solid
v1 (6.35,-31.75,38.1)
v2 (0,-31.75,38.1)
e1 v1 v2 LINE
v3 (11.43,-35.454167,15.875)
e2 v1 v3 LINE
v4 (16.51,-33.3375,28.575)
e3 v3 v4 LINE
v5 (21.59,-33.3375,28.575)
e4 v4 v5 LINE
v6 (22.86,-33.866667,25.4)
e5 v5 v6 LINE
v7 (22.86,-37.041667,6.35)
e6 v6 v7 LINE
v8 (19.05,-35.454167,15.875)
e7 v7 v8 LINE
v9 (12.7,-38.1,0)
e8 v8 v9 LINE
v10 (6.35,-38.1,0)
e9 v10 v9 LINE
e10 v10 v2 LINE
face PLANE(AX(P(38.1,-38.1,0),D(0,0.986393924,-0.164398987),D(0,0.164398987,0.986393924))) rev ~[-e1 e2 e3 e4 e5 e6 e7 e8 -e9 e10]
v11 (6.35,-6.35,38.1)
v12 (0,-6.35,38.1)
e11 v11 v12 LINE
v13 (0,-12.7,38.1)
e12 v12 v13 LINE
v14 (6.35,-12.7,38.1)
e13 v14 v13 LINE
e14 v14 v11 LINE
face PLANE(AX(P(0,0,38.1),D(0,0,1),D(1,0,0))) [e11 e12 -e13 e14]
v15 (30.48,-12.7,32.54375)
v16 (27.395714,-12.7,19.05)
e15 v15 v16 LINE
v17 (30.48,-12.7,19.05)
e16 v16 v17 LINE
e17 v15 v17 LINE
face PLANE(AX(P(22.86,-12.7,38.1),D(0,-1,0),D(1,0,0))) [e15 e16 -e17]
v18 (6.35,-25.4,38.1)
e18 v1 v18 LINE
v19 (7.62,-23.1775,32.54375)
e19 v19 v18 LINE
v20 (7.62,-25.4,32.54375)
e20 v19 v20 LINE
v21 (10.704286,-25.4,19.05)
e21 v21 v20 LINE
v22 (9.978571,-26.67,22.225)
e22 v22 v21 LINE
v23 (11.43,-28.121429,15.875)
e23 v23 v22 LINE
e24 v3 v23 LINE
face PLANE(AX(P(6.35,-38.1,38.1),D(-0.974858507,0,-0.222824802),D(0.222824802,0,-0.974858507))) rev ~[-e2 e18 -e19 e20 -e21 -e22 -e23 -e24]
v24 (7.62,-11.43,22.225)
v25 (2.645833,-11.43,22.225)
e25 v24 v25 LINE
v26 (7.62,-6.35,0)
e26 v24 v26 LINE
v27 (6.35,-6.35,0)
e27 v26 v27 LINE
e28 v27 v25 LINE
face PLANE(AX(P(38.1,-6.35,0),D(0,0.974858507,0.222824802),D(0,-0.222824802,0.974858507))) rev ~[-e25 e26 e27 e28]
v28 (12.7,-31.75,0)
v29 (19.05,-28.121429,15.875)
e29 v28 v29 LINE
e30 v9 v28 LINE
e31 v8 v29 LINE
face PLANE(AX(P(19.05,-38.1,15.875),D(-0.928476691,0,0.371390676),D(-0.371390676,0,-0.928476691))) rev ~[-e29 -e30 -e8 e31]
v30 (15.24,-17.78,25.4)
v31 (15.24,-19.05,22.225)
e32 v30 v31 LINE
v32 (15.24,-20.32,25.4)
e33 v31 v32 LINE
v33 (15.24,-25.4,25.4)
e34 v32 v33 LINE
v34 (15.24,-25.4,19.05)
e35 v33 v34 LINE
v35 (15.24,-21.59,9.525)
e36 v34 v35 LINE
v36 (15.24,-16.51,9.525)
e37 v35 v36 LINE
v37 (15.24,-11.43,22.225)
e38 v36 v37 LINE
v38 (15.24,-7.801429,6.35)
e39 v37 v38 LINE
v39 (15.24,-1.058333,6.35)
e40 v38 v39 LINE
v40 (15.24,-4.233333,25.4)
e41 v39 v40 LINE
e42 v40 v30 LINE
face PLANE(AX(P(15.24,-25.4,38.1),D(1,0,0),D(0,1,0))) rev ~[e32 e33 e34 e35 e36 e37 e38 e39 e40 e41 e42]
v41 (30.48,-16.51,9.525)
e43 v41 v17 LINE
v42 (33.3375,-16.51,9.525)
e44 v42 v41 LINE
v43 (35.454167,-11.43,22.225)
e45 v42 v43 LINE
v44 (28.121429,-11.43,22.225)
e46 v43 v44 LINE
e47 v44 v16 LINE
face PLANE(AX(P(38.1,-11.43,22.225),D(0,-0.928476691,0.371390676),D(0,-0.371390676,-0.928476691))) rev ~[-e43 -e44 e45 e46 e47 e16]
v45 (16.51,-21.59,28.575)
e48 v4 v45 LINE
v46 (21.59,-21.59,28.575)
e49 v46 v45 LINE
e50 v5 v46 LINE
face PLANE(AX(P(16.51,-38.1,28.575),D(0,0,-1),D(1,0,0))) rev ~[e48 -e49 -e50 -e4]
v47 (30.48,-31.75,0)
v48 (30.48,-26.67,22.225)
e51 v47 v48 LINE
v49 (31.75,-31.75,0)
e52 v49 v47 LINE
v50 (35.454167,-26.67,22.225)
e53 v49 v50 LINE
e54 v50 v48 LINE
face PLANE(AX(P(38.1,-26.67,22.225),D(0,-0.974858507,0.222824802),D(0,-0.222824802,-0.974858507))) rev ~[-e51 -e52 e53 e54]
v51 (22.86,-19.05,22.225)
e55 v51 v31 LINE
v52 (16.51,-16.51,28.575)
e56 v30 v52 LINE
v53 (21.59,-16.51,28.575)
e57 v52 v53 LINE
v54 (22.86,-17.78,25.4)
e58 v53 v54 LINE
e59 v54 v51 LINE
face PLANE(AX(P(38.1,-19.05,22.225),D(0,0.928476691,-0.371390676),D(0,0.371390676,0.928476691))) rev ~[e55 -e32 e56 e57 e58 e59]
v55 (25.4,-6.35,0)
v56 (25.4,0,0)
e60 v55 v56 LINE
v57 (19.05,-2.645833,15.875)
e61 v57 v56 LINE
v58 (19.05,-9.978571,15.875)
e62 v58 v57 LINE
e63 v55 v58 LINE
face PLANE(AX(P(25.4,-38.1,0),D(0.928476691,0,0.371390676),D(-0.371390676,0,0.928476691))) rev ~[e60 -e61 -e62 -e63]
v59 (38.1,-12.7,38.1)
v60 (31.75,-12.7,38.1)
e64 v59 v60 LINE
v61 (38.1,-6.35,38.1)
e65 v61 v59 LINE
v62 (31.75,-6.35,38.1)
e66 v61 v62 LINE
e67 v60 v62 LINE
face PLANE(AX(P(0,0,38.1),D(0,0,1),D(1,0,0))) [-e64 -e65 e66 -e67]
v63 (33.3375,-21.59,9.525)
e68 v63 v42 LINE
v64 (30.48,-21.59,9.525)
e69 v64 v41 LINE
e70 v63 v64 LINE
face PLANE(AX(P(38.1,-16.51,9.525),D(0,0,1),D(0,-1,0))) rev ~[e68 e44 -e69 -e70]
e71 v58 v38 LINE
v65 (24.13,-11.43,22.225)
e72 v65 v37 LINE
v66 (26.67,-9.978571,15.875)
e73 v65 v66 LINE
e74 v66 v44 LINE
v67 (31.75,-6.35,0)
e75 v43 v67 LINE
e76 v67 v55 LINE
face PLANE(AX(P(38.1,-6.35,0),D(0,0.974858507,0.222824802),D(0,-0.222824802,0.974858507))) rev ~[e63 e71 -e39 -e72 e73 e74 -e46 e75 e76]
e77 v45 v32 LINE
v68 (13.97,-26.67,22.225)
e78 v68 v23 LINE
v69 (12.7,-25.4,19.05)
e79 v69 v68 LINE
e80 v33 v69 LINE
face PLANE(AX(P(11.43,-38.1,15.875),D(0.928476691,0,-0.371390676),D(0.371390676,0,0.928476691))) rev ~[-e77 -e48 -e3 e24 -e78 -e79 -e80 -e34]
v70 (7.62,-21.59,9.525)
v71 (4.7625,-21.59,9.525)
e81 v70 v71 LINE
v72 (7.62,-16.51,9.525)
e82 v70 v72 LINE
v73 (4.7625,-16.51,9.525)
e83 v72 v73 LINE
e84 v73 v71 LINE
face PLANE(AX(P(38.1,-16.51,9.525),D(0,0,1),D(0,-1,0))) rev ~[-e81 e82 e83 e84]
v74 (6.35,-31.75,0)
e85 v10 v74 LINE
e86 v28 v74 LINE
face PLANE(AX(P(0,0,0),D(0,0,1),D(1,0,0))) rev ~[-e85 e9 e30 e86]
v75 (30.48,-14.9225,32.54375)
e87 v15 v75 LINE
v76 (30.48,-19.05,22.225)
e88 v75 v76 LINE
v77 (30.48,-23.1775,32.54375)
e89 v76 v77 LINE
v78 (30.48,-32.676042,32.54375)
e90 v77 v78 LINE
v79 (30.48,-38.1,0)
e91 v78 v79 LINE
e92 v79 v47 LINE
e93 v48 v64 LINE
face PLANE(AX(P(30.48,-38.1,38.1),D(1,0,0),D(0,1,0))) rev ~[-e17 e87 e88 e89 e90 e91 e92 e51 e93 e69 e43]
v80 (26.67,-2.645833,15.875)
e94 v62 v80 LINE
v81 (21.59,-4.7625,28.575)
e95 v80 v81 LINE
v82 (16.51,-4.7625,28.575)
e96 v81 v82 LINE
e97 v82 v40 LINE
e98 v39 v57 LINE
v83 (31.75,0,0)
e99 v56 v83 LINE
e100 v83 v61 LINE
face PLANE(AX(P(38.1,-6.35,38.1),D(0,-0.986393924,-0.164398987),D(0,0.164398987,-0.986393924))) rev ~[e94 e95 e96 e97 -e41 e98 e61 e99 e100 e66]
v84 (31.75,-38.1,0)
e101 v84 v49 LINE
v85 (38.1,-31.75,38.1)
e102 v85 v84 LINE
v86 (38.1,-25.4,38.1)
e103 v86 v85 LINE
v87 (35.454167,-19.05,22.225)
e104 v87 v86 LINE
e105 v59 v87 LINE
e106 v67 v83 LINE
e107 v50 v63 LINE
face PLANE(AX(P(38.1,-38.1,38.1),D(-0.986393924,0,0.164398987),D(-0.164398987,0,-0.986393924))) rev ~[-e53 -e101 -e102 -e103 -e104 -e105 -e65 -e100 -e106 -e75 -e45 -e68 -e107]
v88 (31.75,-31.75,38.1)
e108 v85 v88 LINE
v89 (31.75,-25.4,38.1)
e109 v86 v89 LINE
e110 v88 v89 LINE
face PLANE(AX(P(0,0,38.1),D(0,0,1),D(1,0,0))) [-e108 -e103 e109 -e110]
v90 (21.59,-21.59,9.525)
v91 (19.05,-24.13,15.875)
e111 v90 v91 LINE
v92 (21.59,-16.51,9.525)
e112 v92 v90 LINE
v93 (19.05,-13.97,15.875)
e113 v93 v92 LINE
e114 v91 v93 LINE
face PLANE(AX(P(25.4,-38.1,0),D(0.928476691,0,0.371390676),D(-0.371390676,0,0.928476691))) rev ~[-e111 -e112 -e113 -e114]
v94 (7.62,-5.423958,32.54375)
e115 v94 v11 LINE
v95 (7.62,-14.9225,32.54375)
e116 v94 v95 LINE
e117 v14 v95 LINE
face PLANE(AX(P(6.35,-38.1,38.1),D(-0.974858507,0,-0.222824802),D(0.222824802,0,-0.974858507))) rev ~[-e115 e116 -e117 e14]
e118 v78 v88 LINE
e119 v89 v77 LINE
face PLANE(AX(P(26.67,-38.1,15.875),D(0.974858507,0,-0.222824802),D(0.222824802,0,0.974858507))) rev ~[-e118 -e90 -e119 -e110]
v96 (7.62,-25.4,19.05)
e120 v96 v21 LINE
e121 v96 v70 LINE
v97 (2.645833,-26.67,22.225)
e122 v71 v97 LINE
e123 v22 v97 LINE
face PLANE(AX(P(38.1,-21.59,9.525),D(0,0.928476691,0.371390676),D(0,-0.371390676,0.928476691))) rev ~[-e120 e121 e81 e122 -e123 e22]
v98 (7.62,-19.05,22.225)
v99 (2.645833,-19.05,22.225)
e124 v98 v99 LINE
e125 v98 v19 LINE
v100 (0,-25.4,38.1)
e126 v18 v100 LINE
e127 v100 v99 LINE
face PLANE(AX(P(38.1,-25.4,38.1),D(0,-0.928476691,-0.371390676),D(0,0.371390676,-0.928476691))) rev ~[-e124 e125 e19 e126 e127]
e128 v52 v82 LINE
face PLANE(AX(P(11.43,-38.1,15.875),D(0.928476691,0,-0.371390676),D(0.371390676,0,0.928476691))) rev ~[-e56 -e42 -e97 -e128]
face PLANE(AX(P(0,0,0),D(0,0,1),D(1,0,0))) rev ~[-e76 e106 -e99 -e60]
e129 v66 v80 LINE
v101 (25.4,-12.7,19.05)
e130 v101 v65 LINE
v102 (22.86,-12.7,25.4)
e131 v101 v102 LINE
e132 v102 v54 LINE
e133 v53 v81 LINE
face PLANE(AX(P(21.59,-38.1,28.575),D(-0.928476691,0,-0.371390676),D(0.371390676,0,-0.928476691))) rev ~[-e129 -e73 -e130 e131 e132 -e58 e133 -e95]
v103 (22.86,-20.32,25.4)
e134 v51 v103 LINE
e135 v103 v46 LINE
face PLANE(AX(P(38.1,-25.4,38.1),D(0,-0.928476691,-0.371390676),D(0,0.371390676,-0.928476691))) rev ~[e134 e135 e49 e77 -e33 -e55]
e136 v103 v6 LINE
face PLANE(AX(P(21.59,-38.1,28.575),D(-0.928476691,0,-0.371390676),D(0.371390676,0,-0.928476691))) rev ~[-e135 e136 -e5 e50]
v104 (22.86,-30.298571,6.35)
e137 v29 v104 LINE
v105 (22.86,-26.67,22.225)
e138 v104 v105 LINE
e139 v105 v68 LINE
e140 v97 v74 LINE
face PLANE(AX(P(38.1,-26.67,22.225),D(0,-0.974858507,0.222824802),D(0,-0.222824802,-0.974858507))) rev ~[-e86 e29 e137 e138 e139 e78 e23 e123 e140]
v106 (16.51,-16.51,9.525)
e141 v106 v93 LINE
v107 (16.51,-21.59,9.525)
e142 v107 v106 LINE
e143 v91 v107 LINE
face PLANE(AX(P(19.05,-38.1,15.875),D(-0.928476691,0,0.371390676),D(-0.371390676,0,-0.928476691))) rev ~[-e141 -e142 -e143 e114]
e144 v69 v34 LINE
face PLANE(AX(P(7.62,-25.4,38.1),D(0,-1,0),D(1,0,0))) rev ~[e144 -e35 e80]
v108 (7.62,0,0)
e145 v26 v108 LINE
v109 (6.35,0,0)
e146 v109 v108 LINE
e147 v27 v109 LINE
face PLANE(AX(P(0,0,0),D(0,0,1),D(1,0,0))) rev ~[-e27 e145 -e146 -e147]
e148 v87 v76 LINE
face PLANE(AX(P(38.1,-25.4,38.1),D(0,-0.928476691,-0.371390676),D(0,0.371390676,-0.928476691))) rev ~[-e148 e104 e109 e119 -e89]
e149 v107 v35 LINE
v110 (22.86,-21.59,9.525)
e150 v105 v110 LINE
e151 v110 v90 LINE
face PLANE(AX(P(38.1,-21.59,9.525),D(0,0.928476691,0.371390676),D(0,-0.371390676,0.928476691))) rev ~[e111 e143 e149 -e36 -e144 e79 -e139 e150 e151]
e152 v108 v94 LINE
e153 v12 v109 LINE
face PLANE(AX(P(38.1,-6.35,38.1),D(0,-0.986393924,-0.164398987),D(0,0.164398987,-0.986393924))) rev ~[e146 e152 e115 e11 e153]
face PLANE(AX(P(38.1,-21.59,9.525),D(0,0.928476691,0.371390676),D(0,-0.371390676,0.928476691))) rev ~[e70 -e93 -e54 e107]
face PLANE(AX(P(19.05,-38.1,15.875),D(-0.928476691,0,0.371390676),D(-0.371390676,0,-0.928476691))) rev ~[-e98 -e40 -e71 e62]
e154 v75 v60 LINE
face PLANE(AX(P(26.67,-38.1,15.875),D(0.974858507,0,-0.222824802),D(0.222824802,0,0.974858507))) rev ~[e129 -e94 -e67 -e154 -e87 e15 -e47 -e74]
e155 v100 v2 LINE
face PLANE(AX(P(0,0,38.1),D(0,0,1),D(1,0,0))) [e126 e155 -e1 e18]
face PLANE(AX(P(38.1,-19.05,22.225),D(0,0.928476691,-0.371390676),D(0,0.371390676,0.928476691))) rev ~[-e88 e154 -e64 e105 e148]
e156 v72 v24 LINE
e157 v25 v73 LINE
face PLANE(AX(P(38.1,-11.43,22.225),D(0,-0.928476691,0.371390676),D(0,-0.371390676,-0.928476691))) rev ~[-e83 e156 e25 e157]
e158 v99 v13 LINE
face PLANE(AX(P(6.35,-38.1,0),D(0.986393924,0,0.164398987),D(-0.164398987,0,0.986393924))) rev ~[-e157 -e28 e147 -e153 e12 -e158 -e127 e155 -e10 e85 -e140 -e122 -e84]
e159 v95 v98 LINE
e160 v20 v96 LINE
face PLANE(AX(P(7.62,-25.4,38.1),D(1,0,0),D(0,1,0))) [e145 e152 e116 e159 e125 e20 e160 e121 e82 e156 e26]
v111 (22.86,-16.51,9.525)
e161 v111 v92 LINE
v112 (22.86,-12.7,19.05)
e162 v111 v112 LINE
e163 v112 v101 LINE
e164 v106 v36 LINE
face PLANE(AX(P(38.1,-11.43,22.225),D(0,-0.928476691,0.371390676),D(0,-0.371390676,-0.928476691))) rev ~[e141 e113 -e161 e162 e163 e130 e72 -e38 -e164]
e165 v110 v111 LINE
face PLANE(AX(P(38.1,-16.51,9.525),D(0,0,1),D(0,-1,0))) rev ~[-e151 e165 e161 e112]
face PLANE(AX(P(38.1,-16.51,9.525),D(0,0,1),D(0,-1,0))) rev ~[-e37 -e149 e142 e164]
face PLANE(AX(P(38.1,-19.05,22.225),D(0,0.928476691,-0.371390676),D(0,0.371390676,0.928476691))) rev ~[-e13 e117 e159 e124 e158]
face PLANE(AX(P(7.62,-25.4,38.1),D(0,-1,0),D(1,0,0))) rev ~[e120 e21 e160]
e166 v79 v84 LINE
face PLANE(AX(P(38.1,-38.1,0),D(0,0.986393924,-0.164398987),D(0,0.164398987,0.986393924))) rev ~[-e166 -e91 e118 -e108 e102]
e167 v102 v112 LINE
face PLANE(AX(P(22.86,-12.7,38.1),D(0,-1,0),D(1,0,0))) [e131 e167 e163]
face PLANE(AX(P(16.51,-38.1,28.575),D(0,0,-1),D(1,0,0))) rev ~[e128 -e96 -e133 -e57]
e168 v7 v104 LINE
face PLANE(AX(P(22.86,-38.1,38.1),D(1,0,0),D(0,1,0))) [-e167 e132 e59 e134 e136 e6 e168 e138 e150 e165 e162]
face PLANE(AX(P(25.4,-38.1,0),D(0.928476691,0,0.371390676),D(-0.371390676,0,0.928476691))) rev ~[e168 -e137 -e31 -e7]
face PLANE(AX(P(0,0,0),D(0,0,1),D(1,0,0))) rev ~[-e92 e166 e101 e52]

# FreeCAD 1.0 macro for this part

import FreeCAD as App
import Part
import Sketcher
from FreeCAD import Vector
Q = App.Units.Quantity


def add_polygon(sketch, points):
    """Adds a closed chain of lines whose ends are joined by coincident constraints."""
    first, n = sketch.GeometryCount, len(points)
    for a, b in zip(points, points[1:] + points[:1]):
        sketch.addGeometry(Part.LineSegment(App.Vector(*a, 0), App.Vector(*b, 0)), False)
    for i in range(n):
        sketch.addConstraint(Sketcher.Constraint("Coincident", first + i, 2, first + (i + 1) % n, 1))

doc = App.newDocument("Part")
params = doc.addObject("Spreadsheet::Sheet", "Params")
for row, (alias, value) in enumerate([
    ("sketch1_width", "1.5 in"),
    ("pad1_length", "1.5 in"),
    ("sketch2_width", "1 in"),
    ("sketch2_width2", "0.5 in"),
    ("sketch2_width3", "0.2 in"),
    ("sketch2_height", "1.5 in"),
    ("pocket1_length", "1.5 in"),
    ("sketch3_width", "1 in"),
    ("sketch3_width2", "0.5 in"),
    ("sketch3_width3", "0.2 in"),
    ("sketch3_height", "1.5 in"),
    ("pocket2_length", "1.5 in"),
    ("sketch4_height", "1 in"),
    ("sketch4_width", "0.3 in"),
    ("pocket3_length", "1.5 in"),
], start=1):
    params.set(f"A{row}", alias)
    params.set(f"B{row}", "=" + value)
    params.setAlias(f"B{row}", alias)

body = doc.addObject("PartDesign::Body", "Body")

# Sketch on XZ plane
sketch1 = doc.addObject("Sketcher::SketchObject", "Sketch")
body.addObject(sketch1)
sketch1.AttachmentSupport = (doc.XZ_Plane, [""])
sketch1.MapMode = "FlatFace"
add_polygon(sketch1, [(0, 38), (0, 0), (38, 0), (38, 38)])  # lines 0-3
sketch1.addConstraint(Sketcher.Constraint("Vertical", 0))
sketch1.addConstraint(Sketcher.Constraint("Horizontal", 1))
sketch1.addConstraint(Sketcher.Constraint("Vertical", 2))
sketch1.addConstraint(Sketcher.Constraint("Horizontal", 3))
sketch1.addConstraint(Sketcher.Constraint("Coincident", 0, 2, -1, 1))
sketch1.addConstraint(Sketcher.Constraint("Equal", 3, 0))
sketch1.addConstraint(Sketcher.Constraint("DistanceX", 1, 1, 1, 2, Q("1.5 in")))
sketch1.setExpression("Constraints[10]", "Params.sketch1_width")
pad1 = doc.addObject("PartDesign::Pad", "Pad")
body.addObject(pad1)
pad1.Profile = sketch1
pad1.setExpression("Length", "Params.pad1_length")

# Sketch on XZ plane
sketch2 = doc.addObject("Sketcher::SketchObject", "Sketch001")
body.addObject(sketch2)
sketch2.AttachmentSupport = (doc.XZ_Plane, [""])
sketch2.MapMode = "FlatFace"
sketch2.AttachmentOffset = App.Placement(Vector(0, 0, 1.5 * 25.4), App.Rotation())
add_polygon(sketch2, [(19, 16), (13, 0), (25, 0)])  # lines 0-2
add_polygon(sketch2, [(0, 38), (0, 0), (6, 0)])  # lines 3-5
add_polygon(sketch2, [(38, 38), (32, 0), (38, 0)])  # lines 6-8
add_polygon(sketch2, [(32, 38), (6, 38), (11, 16), (17, 29), (22, 29), (27, 16)])  # lines 9-14
sketch2.addConstraint(Sketcher.Constraint("Horizontal", 1))
sketch2.addConstraint(Sketcher.Constraint("Vertical", 3))
sketch2.addConstraint(Sketcher.Constraint("Horizontal", 4))
sketch2.addConstraint(Sketcher.Constraint("Horizontal", 7))
sketch2.addConstraint(Sketcher.Constraint("Vertical", 8))
sketch2.addConstraint(Sketcher.Constraint("Horizontal", 9))
sketch2.addConstraint(Sketcher.Constraint("Horizontal", 12))
sketch2.addConstraint(Sketcher.Constraint("Coincident", 3, 2, -1, 1))
sketch2.addConstraint(Sketcher.Constraint("PointOnObject", 0, 2, -1))
sketch2.addConstraint(Sketcher.Constraint("PointOnObject", 6, 2, -1))
sketch2.addConstraint(Sketcher.Constraint("Parallel", 0, 11))
sketch2.addConstraint(Sketcher.Constraint("Parallel", 2, 13))
sketch2.addConstraint(Sketcher.Constraint("Horizontal", 5, 2, 8, 2))
sketch2.addConstraint(Sketcher.Constraint("Horizontal", 8, 2, 9, 2))
sketch2.addConstraint(Sketcher.Constraint("Horizontal", 2, 2, 10, 2))
sketch2.addConstraint(Sketcher.Constraint("Horizontal", 10, 2, 13, 2))
sketch2.addConstraint(Sketcher.Constraint("Vertical", 4, 2, 9, 2))
sketch2.addConstraint(Sketcher.Constraint("Vertical", 6, 2, 14, 2))
sketch2.addConstraint(Sketcher.Constraint("Equal", 4, 7))
sketch2.addConstraint(Sketcher.Constraint("Equal", 0, 2))
sketch2.addConstraint(Sketcher.Constraint("Equal", 10, 14))
sketch2.addConstraint(Sketcher.Constraint("DistanceX", 9, 2, 9, 1, Q("1 in")))
sketch2.addConstraint(Sketcher.Constraint("DistanceX", 1, 1, 1, 2, Q("0.5 in")))
sketch2.addConstraint(Sketcher.Constraint("DistanceX", 12, 1, 12, 2, Q("0.2 in")))
sketch2.addConstraint(Sketcher.Constraint("DistanceY", 3, 2, 3, 1, Q("1.5 in")))
sketch2.addConstraint(Sketcher.Constraint("DistanceX", -1, 1, 1, 2, Q("1 in")))
sketch2.addConstraint(Sketcher.Constraint("DistanceX", 0, 2, 7, 2, Q("1 in")))
sketch2.addConstraint(Sketcher.Constraint("DistanceX", 10, 2, 2, 2, Q("0.3 in")))
sketch2.addConstraint(Sketcher.Constraint("DistanceY", 2, 2, 11, 2, Q("0.5 in")))
sketch2.setExpression("Constraints[36]", "Params.sketch2_width")
sketch2.setExpression("Constraints[37]", "Params.sketch2_width2")
sketch2.setExpression("Constraints[38]", "Params.sketch2_width3")
sketch2.setExpression("Constraints[39]", "Params.sketch2_height")
pocket1 = doc.addObject("PartDesign::Pocket", "Pocket")
body.addObject(pocket1)
pocket1.Profile = sketch2
pocket1.setExpression("Length", "Params.pocket1_length")

# Sketch on YZ plane
sketch3 = doc.addObject("Sketcher::SketchObject", "Sketch002")
body.addObject(sketch3)
sketch3.AttachmentSupport = (doc.YZ_Plane, [""])
sketch3.MapMode = "FlatFace"
sketch3.AttachmentOffset = App.Placement(Vector(0, 0, 1.5 * 25.4), App.Rotation())
add_polygon(sketch3, [(-38, 0), (-32, 38), (-38, 38)])  # lines 0-2
add_polygon(sketch3, [(-13, 38), (-25, 38), (-19, 22)])  # lines 3-5
add_polygon(sketch3, [(0, 38), (-6, 38), (0, 0)])  # lines 6-8
add_polygon(sketch3, [(-27, 22), (-32, 0), (-6, 0), (-11, 22), (-17, 10), (-22, 10)])  # lines 9-14
sketch3.addConstraint(Sketcher.Constraint("Horizontal", 1))
sketch3.addConstraint(Sketcher.Constraint("Vertical", 2))
sketch3.addConstraint(Sketcher.Constraint("Horizontal", 3))
sketch3.addConstraint(Sketcher.Constraint("Horizontal", 6))
sketch3.addConstraint(Sketcher.Constraint("Vertical", 8))
sketch3.addConstraint(Sketcher.Constraint("Horizontal", 10))
sketch3.addConstraint(Sketcher.Constraint("Horizontal", 13))
sketch3.addConstraint(Sketcher.Constraint("Coincident", 7, 2, -1, 1))
sketch3.addConstraint(Sketcher.Constraint("PointOnObject", 2, 2, -1))
sketch3.addConstraint(Sketcher.Constraint("PointOnObject", 9, 2, -1))
sketch3.addConstraint(Sketcher.Constraint("Parallel", 5, 12))
sketch3.addConstraint(Sketcher.Constraint("Parallel", 4, 14))
sketch3.addConstraint(Sketcher.Constraint("Horizontal", 1, 2, 3, 2))
sketch3.addConstraint(Sketcher.Constraint("Horizontal", 5, 2, 6, 2))
sketch3.addConstraint(Sketcher.Constraint("Horizontal", 4, 2, 11, 2))
sketch3.addConstraint(Sketcher.Constraint("Horizontal", 11, 2, 14, 2))
sketch3.addConstraint(Sketcher.Constraint("Vertical", 0, 2, 9, 2))
sketch3.addConstraint(Sketcher.Constraint("Vertical", 6, 2, 10, 2))
sketch3.addConstraint(Sketcher.Constraint("Equal", 1, 6))
sketch3.addConstraint(Sketcher.Constraint("Equal", 4, 5))
sketch3.addConstraint(Sketcher.Constraint("Equal", 9, 11))
sketch3.addConstraint(Sketcher.Constraint("DistanceX", 10, 1, 10, 2, Q("1 in")))
sketch3.addConstraint(Sketcher.Constraint("DistanceX", 3, 2, 3, 1, Q("0.5 in")))
sketch3.addConstraint(Sketcher.Constraint("DistanceX", 13, 2, 13, 1, Q("0.2 in")))
sketch3.addConstraint(Sketcher.Constraint("DistanceY", 2, 2, 2, 1, Q("1.5 in")))
sketch3.addConstraint(Sketcher.Constraint("DistanceX", 3, 2, -1, 1, Q("1 in")))
sketch3.addConstraint(Sketcher.Constraint("DistanceX", 1, 2, 5, 2, Q("1 in")))
sketch3.addConstraint(Sketcher.Constraint("DistanceX", 4, 2, 11, 2, Q("0.3 in")))
sketch3.addConstraint(Sketcher.Constraint("DistanceY", 12, 2, 4, 2, Q("0.5 in")))
sketch3.setExpression("Constraints[36]", "Params.sketch3_width")
sketch3.setExpression("Constraints[37]", "Params.sketch3_width2")
sketch3.setExpression("Constraints[38]", "Params.sketch3_width3")
sketch3.setExpression("Constraints[39]", "Params.sketch3_height")
pocket2 = doc.addObject("PartDesign::Pocket", "Pocket001")
body.addObject(pocket2)
pocket2.Profile = sketch3
pocket2.setExpression("Length", "Params.pocket2_length")

# Sketch on XY plane
sketch4 = doc.addObject("Sketcher::SketchObject", "Sketch003")
body.addObject(sketch4)
sketch4.AttachmentSupport = (doc.XY_Plane, [""])
sketch4.MapMode = "FlatFace"
sketch4.AttachmentOffset = App.Placement(Vector(0, 0, 1.5 * 25.4), App.Rotation())
add_polygon(sketch4, [(8, 0), (8, -25), (15, -25), (15, 0)])  # lines 0-3
add_polygon(sketch4, [(23, -13), (23, -38), (30, -38), (30, -13)])  # lines 4-7
sketch4.addConstraint(Sketcher.Constraint("Vertical", 0))
sketch4.addConstraint(Sketcher.Constraint("Horizontal", 1))
sketch4.addConstraint(Sketcher.Constraint("Vertical", 2))
sketch4.addConstraint(Sketcher.Constraint("Horizontal", 3))
sketch4.addConstraint(Sketcher.Constraint("Vertical", 4))
sketch4.addConstraint(Sketcher.Constraint("Horizontal", 5))
sketch4.addConstraint(Sketcher.Constraint("Vertical", 6))
sketch4.addConstraint(Sketcher.Constraint("Horizontal", 7))
sketch4.addConstraint(Sketcher.Constraint("PointOnObject", 2, 2, -1))
sketch4.addConstraint(Sketcher.Constraint("Equal", 3, 5))
sketch4.addConstraint(Sketcher.Constraint("Equal", 2, 4))
sketch4.addConstraint(Sketcher.Constraint("DistanceY", 0, 2, 0, 1, Q("1 in")))
sketch4.addConstraint(Sketcher.Constraint("DistanceX", 1, 1, 1, 2, Q("0.3 in")))
sketch4.addConstraint(Sketcher.Constraint("DistanceX", -1, 1, 0, 2, Q("0.3 in")))
sketch4.addConstraint(Sketcher.Constraint("DistanceX", -1, 1, 4, 2, Q("0.9 in")))
sketch4.addConstraint(Sketcher.Constraint("DistanceY", 4, 2, -1, 1, Q("1.5 in")))
sketch4.setExpression("Constraints[19]", "Params.sketch4_height")
sketch4.setExpression("Constraints[20]", "Params.sketch4_width")
pocket3 = doc.addObject("PartDesign::Pocket", "Pocket002")
body.addObject(pocket3)
pocket3.Profile = sketch4
pocket3.setExpression("Length", "Params.pocket3_length")

doc.recompute()
